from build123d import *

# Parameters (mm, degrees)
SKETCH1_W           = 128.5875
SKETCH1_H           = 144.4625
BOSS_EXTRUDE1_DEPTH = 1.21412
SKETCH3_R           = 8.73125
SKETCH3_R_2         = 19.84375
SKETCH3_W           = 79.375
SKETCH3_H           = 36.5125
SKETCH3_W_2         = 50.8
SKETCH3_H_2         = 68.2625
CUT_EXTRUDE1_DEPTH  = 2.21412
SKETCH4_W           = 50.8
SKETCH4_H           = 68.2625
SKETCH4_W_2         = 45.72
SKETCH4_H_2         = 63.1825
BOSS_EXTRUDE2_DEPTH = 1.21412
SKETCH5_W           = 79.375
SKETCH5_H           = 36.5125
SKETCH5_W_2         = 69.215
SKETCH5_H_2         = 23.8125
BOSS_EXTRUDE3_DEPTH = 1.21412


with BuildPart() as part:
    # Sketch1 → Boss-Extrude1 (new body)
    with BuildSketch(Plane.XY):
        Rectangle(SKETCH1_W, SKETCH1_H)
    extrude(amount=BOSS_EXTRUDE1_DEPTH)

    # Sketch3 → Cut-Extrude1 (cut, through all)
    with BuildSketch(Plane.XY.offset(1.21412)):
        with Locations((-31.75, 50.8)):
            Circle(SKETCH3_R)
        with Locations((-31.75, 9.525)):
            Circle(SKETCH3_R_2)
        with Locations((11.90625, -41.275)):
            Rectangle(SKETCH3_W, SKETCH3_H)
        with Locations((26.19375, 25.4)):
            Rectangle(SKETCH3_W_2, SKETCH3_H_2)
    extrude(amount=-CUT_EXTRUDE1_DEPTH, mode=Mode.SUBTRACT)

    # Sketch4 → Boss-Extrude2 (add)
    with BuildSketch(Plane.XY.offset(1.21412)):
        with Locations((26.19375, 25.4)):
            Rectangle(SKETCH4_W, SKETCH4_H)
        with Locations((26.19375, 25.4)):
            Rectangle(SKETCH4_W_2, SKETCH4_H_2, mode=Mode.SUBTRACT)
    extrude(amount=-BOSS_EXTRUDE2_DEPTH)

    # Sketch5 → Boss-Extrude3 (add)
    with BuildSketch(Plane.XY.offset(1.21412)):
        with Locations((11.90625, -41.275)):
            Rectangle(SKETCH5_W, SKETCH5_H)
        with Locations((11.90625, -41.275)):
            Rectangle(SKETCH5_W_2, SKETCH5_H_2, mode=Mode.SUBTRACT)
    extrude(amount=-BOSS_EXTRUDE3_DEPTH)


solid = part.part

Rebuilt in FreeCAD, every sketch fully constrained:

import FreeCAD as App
import Part
import Sketcher
Q = App.Units.Quantity

doc = App.newDocument("Part")
body = doc.addObject("PartDesign::Body", "Body")

# Sketch on XY plane
sketch1 = body.newObject("Sketcher::SketchObject", "Sketch")
sketch1.AttachmentSupport = (doc.getObject("XY_Plane"), [""])
sketch1.MapMode = "FlatFace"
sketch1.addGeometry([
    Part.LineSegment(App.Vector(-64, 72, 0), App.Vector(-64, -72, 0)),
    Part.LineSegment(App.Vector(-64, -72, 0), App.Vector(64, -72, 0)),
    Part.LineSegment(App.Vector(64, -72, 0), App.Vector(64, 72, 0)),
    Part.LineSegment(App.Vector(64, 72, 0), App.Vector(-64, 72, 0)),
], False)
sketch1.addConstraint([
    Sketcher.Constraint("Coincident", 0, 2, 1, 1),
    Sketcher.Constraint("Coincident", 1, 2, 2, 1),
    Sketcher.Constraint("Coincident", 2, 2, 3, 1),
    Sketcher.Constraint("Coincident", 3, 2, 0, 1),
    Sketcher.Constraint("Vertical", 0),
    Sketcher.Constraint("Horizontal", 1),
    Sketcher.Constraint("Vertical", 2),
    Sketcher.Constraint("Horizontal", 3),
    Sketcher.Constraint("Symmetric", 0, 2, 2, 2, -1, 1),
    Sketcher.Constraint("DistanceX", 1, 1, 1, 2, Q("5.0625 in")),
    Sketcher.Constraint("DistanceY", 0, 2, 0, 1, Q("5.6875 in")),
])
pad1 = body.newObject("PartDesign::Pad", "Pad")
pad1.Profile = sketch1
pad1.Length = Q("0.0478 in")

# Sketch on XY plane
sketch2 = body.newObject("Sketcher::SketchObject", "Sketch001")
sketch2.AttachmentSupport = (doc.getObject("XY_Plane"), [""])
sketch2.MapMode = "FlatFace"
sketch2.AttachmentOffset = App.Placement(App.Vector(0, 0, 0.0478 * 25.4), App.Rotation())
sketch2.addGeometry([
    Part.Circle(App.Vector(-32, 51, 0), App.Vector(0, 0, 1), 9),  # 0
    Part.Circle(App.Vector(-32, 10, 0), App.Vector(0, 0, 1), 20),  # 1
    Part.LineSegment(App.Vector(-28, -23, 0), App.Vector(-28, -60, 0)),  # 2
    Part.LineSegment(App.Vector(-28, -60, 0), App.Vector(52, -60, 0)),  # 3
    Part.LineSegment(App.Vector(52, -60, 0), App.Vector(52, -23, 0)),  # 4
    Part.LineSegment(App.Vector(52, -23, 0), App.Vector(-28, -23, 0)),  # 5
    Part.LineSegment(App.Vector(1, 60, 0), App.Vector(1, -9, 0)),  # 6
    Part.LineSegment(App.Vector(1, -9, 0), App.Vector(52, -9, 0)),  # 7
    Part.LineSegment(App.Vector(52, -9, 0), App.Vector(52, 60, 0)),  # 8
    Part.LineSegment(App.Vector(52, 60, 0), App.Vector(1, 60, 0)),  # 9
], False)
sketch2.addConstraint([
    Sketcher.Constraint("Coincident", 2, 2, 3, 1),
    Sketcher.Constraint("Coincident", 3, 2, 4, 1),
    Sketcher.Constraint("Coincident", 4, 2, 5, 1),
    Sketcher.Constraint("Coincident", 5, 2, 2, 1),
    Sketcher.Constraint("Coincident", 6, 2, 7, 1),
    Sketcher.Constraint("Coincident", 7, 2, 8, 1),
    Sketcher.Constraint("Coincident", 8, 2, 9, 1),
    Sketcher.Constraint("Coincident", 9, 2, 6, 1),
    Sketcher.Constraint("Vertical", 2),
    Sketcher.Constraint("Horizontal", 3),
    Sketcher.Constraint("Vertical", 4),
    Sketcher.Constraint("Horizontal", 5),
    Sketcher.Constraint("Vertical", 6),
    Sketcher.Constraint("Horizontal", 7),
    Sketcher.Constraint("Vertical", 8),
    Sketcher.Constraint("Horizontal", 9),
    Sketcher.Constraint("Symmetric", 3, 2, 8, 2, -1),
    Sketcher.Constraint("Vertical", 0, 3, 1, 3),
    Sketcher.Constraint("DistanceX", 7, 1, 7, 2, Q("2 in")),
    Sketcher.Constraint("Diameter", 0, Q("0.6875 in")),
    Sketcher.Constraint("Diameter", 1, Q("1.5625 in")),
    Sketcher.Constraint("DistanceY", -1, 1, 0, 3, Q("2 in")),
    Sketcher.Constraint("DistanceY", 2, 2, 6, 2, Q("2 in")),
    Sketcher.Constraint("DistanceX", 3, 1, 3, 2, Q("3.125 in")),
    Sketcher.Constraint("DistanceY", 2, 2, 2, 1, Q("1.4375 in")),
    Sketcher.Constraint("DistanceY", 6, 2, 6, 1, Q("2.6875 in")),
    Sketcher.Constraint("DistanceX", 0, 3, -1, 1, Q("1.25 in")),
    Sketcher.Constraint("DistanceY", -1, 1, 1, 3, Q("0.375 in")),
    Sketcher.Constraint("DistanceX", 2, 2, -1, 1, Q("1.09375 in")),
])
pocket1 = body.newObject("PartDesign::Pocket", "Pocket")
pocket1.Profile = sketch2
pocket1.Type = "ThroughAll"

# Sketch on XY plane
sketch3 = body.newObject("Sketcher::SketchObject", "Sketch002")
sketch3.AttachmentSupport = (doc.getObject("XY_Plane"), [""])
sketch3.MapMode = "FlatFace"
sketch3.AttachmentOffset = App.Placement(App.Vector(0, 0, 0.0478 * 25.4), App.Rotation())
sketch3.addGeometry([
    Part.LineSegment(App.Vector(1, 60, 0), App.Vector(1, -9, 0)),  # 0
    Part.LineSegment(App.Vector(1, -9, 0), App.Vector(52, -9, 0)),  # 1
    Part.LineSegment(App.Vector(52, -9, 0), App.Vector(52, 60, 0)),  # 2
    Part.LineSegment(App.Vector(52, 60, 0), App.Vector(1, 60, 0)),  # 3
    Part.LineSegment(App.Vector(49, -6, 0), App.Vector(3, -6, 0)),  # 4
    Part.LineSegment(App.Vector(3, -6, 0), App.Vector(3, 57, 0)),  # 5
    Part.LineSegment(App.Vector(3, 57, 0), App.Vector(49, 57, 0)),  # 6
    Part.LineSegment(App.Vector(49, 57, 0), App.Vector(49, -6, 0)),  # 7
], False)
sketch3.addConstraint([
    Sketcher.Constraint("Coincident", 0, 2, 1, 1),
    Sketcher.Constraint("Coincident", 1, 2, 2, 1),
    Sketcher.Constraint("Coincident", 2, 2, 3, 1),
    Sketcher.Constraint("Coincident", 3, 2, 0, 1),
    Sketcher.Constraint("Coincident", 4, 2, 5, 1),
    Sketcher.Constraint("Coincident", 5, 2, 6, 1),
    Sketcher.Constraint("Coincident", 6, 2, 7, 1),
    Sketcher.Constraint("Coincident", 7, 2, 4, 1),
    Sketcher.Constraint("Vertical", 0),
    Sketcher.Constraint("Horizontal", 1),
    Sketcher.Constraint("Vertical", 2),
    Sketcher.Constraint("Horizontal", 3),
    Sketcher.Constraint("Horizontal", 4),
    Sketcher.Constraint("Vertical", 5),
    Sketcher.Constraint("Horizontal", 6),
    Sketcher.Constraint("Vertical", 7),
    Sketcher.Constraint("DistanceX", 1, 1, 1, 2, Q("2 in")),
    Sketcher.Constraint("DistanceX", 4, 2, 4, 1, Q("1.8 in")),
    Sketcher.Constraint("DistanceX", 0, 2, 4, 2, Q("0.1 in")),
    Sketcher.Constraint("DistanceY", 0, 2, 4, 2, Q("0.1 in")),
    Sketcher.Constraint("DistanceY", 5, 2, 3, 2, Q("0.1 in")),
    Sketcher.Constraint("DistanceY", 0, 2, 0, 1, Q("2.6875 in")),
    Sketcher.Constraint("DistanceX", -1, 1, 0, 2, Q("0.03125 in")),
    Sketcher.Constraint("DistanceY", 0, 2, -1, 1, Q("0.34375 in")),
])
pad2 = body.newObject("PartDesign::Pad", "Pad001")
pad2.Profile = sketch3
pad2.Length = Q("0.0478 in")
pad2.Reversed = True

# Sketch on XY plane
sketch4 = body.newObject("Sketcher::SketchObject", "Sketch003")
sketch4.AttachmentSupport = (doc.getObject("XY_Plane"), [""])
sketch4.MapMode = "FlatFace"
sketch4.AttachmentOffset = App.Placement(App.Vector(0, 0, 0.0478 * 25.4), App.Rotation())
sketch4.addGeometry([
    Part.LineSegment(App.Vector(-28, -23, 0), App.Vector(-28, -60, 0)),  # 0
    Part.LineSegment(App.Vector(-28, -60, 0), App.Vector(52, -60, 0)),  # 1
    Part.LineSegment(App.Vector(52, -60, 0), App.Vector(52, -23, 0)),  # 2
    Part.LineSegment(App.Vector(52, -23, 0), App.Vector(-28, -23, 0)),  # 3
    Part.LineSegment(App.Vector(47, -53, 0), App.Vector(-23, -53, 0)),  # 4
    Part.LineSegment(App.Vector(-23, -53, 0), App.Vector(-23, -29, 0)),  # 5
    Part.LineSegment(App.Vector(-23, -29, 0), App.Vector(47, -29, 0)),  # 6
    Part.LineSegment(App.Vector(47, -29, 0), App.Vector(47, -53, 0)),  # 7
], False)
sketch4.addConstraint([
    Sketcher.Constraint("Coincident", 0, 2, 1, 1),
    Sketcher.Constraint("Coincident", 1, 2, 2, 1),
    Sketcher.Constraint("Coincident", 2, 2, 3, 1),
    Sketcher.Constraint("Coincident", 3, 2, 0, 1),
    Sketcher.Constraint("Coincident", 4, 2, 5, 1),
    Sketcher.Constraint("Coincident", 5, 2, 6, 1),
    Sketcher.Constraint("Coincident", 6, 2, 7, 1),
    Sketcher.Constraint("Coincident", 7, 2, 4, 1),
    Sketcher.Constraint("Vertical", 0),
    Sketcher.Constraint("Horizontal", 1),
    Sketcher.Constraint("Vertical", 2),
    Sketcher.Constraint("Horizontal", 3),
    Sketcher.Constraint("Horizontal", 4),
    Sketcher.Constraint("Vertical", 5),
    Sketcher.Constraint("Horizontal", 6),
    Sketcher.Constraint("Vertical", 7),
    Sketcher.Constraint("DistanceX", 0, 2, 4, 2, Q("0.2 in")),
    Sketcher.Constraint("DistanceX", 6, 2, 2, 2, Q("0.2 in")),
    Sketcher.Constraint("DistanceX", 1, 1, 1, 2, Q("3.125 in")),
    Sketcher.Constraint("DistanceY", 0, 2, 0, 1, Q("1.4375 in")),
    Sketcher.Constraint("DistanceY", 5, 1, 5, 2, Q("0.9375 in")),
    Sketcher.Constraint("DistanceY", 0, 2, 4, 2, Q("0.25 in")),
    Sketcher.Constraint("DistanceX", 0, 2, -1, 1, Q("1.09375 in")),
    Sketcher.Constraint("DistanceY", 0, 2, -1, 1, Q("2.34375 in")),
])
pad3 = body.newObject("PartDesign::Pad", "Pad002")
pad3.Profile = sketch4
pad3.Length = Q("0.0478 in")
pad3.Reversed = True

doc.recompute()
